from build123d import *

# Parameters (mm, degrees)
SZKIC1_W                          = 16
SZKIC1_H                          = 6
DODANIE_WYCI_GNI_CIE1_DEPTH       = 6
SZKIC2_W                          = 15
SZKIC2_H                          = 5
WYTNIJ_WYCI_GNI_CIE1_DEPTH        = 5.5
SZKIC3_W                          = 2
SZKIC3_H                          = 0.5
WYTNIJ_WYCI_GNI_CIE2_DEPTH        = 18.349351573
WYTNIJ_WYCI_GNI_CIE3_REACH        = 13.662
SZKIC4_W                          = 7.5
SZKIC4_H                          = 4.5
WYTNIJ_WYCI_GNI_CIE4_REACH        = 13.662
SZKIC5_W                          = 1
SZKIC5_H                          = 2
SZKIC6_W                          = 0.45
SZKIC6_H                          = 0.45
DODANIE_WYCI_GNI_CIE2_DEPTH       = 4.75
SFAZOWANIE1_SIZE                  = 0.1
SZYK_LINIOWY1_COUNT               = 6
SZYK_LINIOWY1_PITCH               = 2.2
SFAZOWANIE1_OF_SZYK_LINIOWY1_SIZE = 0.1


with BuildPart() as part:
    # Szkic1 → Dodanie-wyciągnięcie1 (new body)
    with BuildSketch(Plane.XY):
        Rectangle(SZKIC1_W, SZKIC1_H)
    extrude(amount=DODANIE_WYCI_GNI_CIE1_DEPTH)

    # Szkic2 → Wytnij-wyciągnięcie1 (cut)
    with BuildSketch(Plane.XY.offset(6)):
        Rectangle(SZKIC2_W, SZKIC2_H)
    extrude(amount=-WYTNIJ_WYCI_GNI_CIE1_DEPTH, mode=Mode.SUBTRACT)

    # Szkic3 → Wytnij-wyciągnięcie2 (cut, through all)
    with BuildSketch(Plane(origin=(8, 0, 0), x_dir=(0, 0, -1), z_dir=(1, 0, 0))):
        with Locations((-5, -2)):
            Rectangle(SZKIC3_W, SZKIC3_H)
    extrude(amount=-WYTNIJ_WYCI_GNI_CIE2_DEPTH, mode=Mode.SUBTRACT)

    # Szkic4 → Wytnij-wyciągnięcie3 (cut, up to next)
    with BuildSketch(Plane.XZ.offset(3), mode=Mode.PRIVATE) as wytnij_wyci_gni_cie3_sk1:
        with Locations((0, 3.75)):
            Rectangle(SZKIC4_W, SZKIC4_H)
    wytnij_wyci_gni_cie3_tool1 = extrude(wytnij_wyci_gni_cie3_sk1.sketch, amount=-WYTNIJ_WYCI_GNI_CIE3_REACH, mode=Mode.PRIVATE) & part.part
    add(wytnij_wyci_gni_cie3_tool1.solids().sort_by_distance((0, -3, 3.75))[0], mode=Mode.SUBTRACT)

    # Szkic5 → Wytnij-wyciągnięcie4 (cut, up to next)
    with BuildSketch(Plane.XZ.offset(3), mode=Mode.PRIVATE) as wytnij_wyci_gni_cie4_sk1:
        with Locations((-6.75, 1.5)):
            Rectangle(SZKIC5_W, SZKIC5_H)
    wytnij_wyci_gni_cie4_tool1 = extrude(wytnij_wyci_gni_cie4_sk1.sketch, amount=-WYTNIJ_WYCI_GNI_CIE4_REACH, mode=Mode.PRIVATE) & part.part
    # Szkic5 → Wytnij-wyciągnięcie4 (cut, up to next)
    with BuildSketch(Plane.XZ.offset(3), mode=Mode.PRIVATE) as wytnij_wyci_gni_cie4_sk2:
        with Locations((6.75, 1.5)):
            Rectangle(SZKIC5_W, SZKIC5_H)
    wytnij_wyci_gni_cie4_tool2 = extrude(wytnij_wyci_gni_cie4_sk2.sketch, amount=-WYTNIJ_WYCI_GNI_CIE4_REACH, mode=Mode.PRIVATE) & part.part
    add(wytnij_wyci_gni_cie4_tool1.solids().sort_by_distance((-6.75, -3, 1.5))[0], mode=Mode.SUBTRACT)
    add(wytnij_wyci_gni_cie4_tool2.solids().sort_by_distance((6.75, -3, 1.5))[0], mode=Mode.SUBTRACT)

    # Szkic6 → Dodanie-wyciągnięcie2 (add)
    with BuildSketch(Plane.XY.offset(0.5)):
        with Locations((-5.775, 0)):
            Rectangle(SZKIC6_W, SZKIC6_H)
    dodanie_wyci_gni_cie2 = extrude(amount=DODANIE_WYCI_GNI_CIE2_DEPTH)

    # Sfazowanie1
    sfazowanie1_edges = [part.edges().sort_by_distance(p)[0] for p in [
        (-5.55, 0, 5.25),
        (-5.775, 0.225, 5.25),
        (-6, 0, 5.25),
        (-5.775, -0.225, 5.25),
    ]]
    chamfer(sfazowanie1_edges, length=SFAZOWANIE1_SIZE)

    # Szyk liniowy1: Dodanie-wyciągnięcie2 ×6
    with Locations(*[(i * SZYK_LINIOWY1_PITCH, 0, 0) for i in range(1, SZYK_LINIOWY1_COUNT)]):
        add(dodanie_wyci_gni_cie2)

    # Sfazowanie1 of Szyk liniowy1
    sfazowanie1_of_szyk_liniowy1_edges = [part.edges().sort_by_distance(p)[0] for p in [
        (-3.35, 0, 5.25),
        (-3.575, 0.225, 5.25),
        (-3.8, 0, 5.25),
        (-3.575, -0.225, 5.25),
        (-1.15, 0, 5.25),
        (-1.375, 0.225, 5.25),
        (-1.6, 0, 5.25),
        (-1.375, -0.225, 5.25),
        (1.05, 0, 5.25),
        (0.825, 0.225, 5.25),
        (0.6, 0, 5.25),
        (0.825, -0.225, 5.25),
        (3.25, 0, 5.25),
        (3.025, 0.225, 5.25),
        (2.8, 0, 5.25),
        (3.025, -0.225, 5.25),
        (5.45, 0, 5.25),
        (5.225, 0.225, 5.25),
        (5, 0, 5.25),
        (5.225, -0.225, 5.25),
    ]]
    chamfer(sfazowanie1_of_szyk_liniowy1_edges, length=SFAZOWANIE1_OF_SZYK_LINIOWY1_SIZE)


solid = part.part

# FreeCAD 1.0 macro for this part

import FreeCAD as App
import Part
import Sketcher
Q = App.Units.Quantity


def edges_at(feature, points):
    """Names of the edges that pass closest to the given points."""
    edges = feature.Shape.Edges
    near = lambda p: min(range(len(edges)), key=lambda i: edges[i].distToShape(Part.Vertex(*p))[0])
    return sorted({f"Edge{near(p) + 1}" for p in points})


def add_polygon(sketch, points):
    """Adds a closed chain of lines whose ends are joined by coincident constraints."""
    first, n = sketch.GeometryCount, len(points)
    for a, b in zip(points, points[1:] + points[:1]):
        sketch.addGeometry(Part.LineSegment(App.Vector(*a, 0), App.Vector(*b, 0)), False)
    for i in range(n):
        sketch.addConstraint(Sketcher.Constraint("Coincident", first + i, 2, first + (i + 1) % n, 1))

doc = App.newDocument("Part")
body = doc.addObject("PartDesign::Body", "Body")

# Sketch on XY plane
sketch1 = doc.addObject("Sketcher::SketchObject", "Sketch")
body.addObject(sketch1)
sketch1.AttachmentSupport = (doc.XY_Plane, [""])
sketch1.MapMode = "FlatFace"
add_polygon(sketch1, [(-8, 3), (-8, -3), (8, -3), (8, 3)])  # lines 0-3
sketch1.addConstraint([
    Sketcher.Constraint("Vertical", 0),
    Sketcher.Constraint("Horizontal", 1),
    Sketcher.Constraint("Vertical", 2),
    Sketcher.Constraint("Horizontal", 3),
    Sketcher.Constraint("Symmetric", 0, 2, 2, 2, -1, 1),
    Sketcher.Constraint("DistanceX", 1, 1, 1, 2, Q("16 mm")),
    Sketcher.Constraint("DistanceY", 0, 2, 0, 1, Q("6 mm")),
])
pad1 = doc.addObject("PartDesign::Pad", "Pad")
body.addObject(pad1)
pad1.Profile = sketch1
pad1.Length = 6

# Sketch on XY plane
sketch2 = doc.addObject("Sketcher::SketchObject", "Sketch001")
body.addObject(sketch2)
sketch2.AttachmentSupport = (doc.XY_Plane, [""])
sketch2.MapMode = "FlatFace"
sketch2.AttachmentOffset = App.Placement(App.Vector(0, 0, 6), App.Rotation())
add_polygon(sketch2, [(-8, 2), (-8, -2), (8, -2), (8, 2)])  # lines 0-3
sketch2.addConstraint([
    Sketcher.Constraint("Vertical", 0),
    Sketcher.Constraint("Horizontal", 1),
    Sketcher.Constraint("Vertical", 2),
    Sketcher.Constraint("Horizontal", 3),
    Sketcher.Constraint("Symmetric", 0, 2, 2, 2, -1, 1),
    Sketcher.Constraint("DistanceX", 1, 1, 1, 2, Q("15 mm")),
    Sketcher.Constraint("DistanceY", 0, 2, 0, 1, Q("5 mm")),
])
pocket1 = doc.addObject("PartDesign::Pocket", "Pocket")
body.addObject(pocket1)
pocket1.Profile = sketch2
pocket1.Length = 5.5

# Sketch on YZ plane
sketch3 = doc.addObject("Sketcher::SketchObject", "Sketch002")
body.addObject(sketch3)
sketch3.AttachmentSupport = (doc.YZ_Plane, [""])
sketch3.MapMode = "FlatFace"
sketch3.AttachmentOffset = App.Placement(App.Vector(0, 0, 8), App.Rotation())
add_polygon(sketch3, [(-1.8, 6), (-2.2, 6), (-2.2, 4), (-1.8, 4)])  # lines 0-3
sketch3.addConstraint([
    Sketcher.Constraint("Horizontal", 0),
    Sketcher.Constraint("Vertical", 1),
    Sketcher.Constraint("Horizontal", 2),
    Sketcher.Constraint("Vertical", 3),
    Sketcher.Constraint("DistanceY", 1, 2, 1, 1, Q("2 mm")),
    Sketcher.Constraint("DistanceX", 0, 2, 0, 1, Q("0.5 mm")),
    Sketcher.Constraint("DistanceY", -1, 1, 0, 2, Q("6 mm")),
    Sketcher.Constraint("DistanceX", 0, 2, -1, 1, Q("2.25 mm")),
])
pocket2 = doc.addObject("PartDesign::Pocket", "Pocket001")
body.addObject(pocket2)
pocket2.Profile = sketch3
pocket2.Type = "ThroughAll"

# Sketch on XZ plane
sketch4 = doc.addObject("Sketcher::SketchObject", "Sketch003")
body.addObject(sketch4)
sketch4.AttachmentSupport = (doc.XZ_Plane, [""])
sketch4.MapMode = "FlatFace"
sketch4.AttachmentOffset = App.Placement(App.Vector(0, 0, 3), App.Rotation())
add_polygon(sketch4, [(-3.8, 6), (-3.8, 1.5), (3.8, 1.5), (3.8, 6)])  # lines 0-3
sketch4.addConstraint([
    Sketcher.Constraint("Vertical", 0),
    Sketcher.Constraint("Horizontal", 1),
    Sketcher.Constraint("Vertical", 2),
    Sketcher.Constraint("Horizontal", 3),
    Sketcher.Constraint("DistanceX", 1, 1, 1, 2, Q("7.5 mm")),
    Sketcher.Constraint("DistanceY", 0, 2, 0, 1, Q("4.5 mm")),
    Sketcher.Constraint("DistanceY", -1, 1, 2, 2, Q("6 mm")),
    Sketcher.Constraint("DistanceX", 0, 2, -1, 1, Q("3.75 mm")),
])
pocket3 = doc.addObject("PartDesign::Pocket", "Pocket002")
body.addObject(pocket3)
pocket3.Profile = sketch4
pocket3.Type = "UpToFirst"

# Sketch on XZ plane
sketch5 = doc.addObject("Sketcher::SketchObject", "Sketch004")
body.addObject(sketch5)
sketch5.AttachmentSupport = (doc.XZ_Plane, [""])
sketch5.MapMode = "FlatFace"
sketch5.AttachmentOffset = App.Placement(App.Vector(0, 0, 3), App.Rotation())
add_polygon(sketch5, [(-7.2, 2.5), (-7.2, 0.5), (-6.2, 0.5), (-6.2, 2.5)])  # lines 0-3
sketch5.addConstraint([
    Sketcher.Constraint("Vertical", 0),
    Sketcher.Constraint("Horizontal", 1),
    Sketcher.Constraint("Vertical", 2),
    Sketcher.Constraint("Horizontal", 3),
    Sketcher.Constraint("DistanceX", 1, 1, 1, 2, Q("1 mm")),
    Sketcher.Constraint("DistanceY", 0, 2, 0, 1, Q("2 mm")),
    Sketcher.Constraint("DistanceY", -1, 1, 0, 2, Q("0.5 mm")),
    Sketcher.Constraint("DistanceX", 0, 2, -1, 1, Q("7.25 mm")),
])
pocket4 = doc.addObject("PartDesign::Pocket", "Pocket003")
body.addObject(pocket4)
pocket4.Profile = sketch5
pocket4.Type = "UpToFirst"

# Sketch on XZ plane
sketch6 = doc.addObject("Sketcher::SketchObject", "Sketch005")
body.addObject(sketch6)
sketch6.AttachmentSupport = (doc.XZ_Plane, [""])
sketch6.MapMode = "FlatFace"
sketch6.AttachmentOffset = App.Placement(App.Vector(0, 0, 3), App.Rotation())
add_polygon(sketch6, [(6.2, 2.5), (6.2, 0.5), (7.2, 0.5), (7.2, 2.5)])  # lines 0-3
sketch6.addConstraint([
    Sketcher.Constraint("Vertical", 0),
    Sketcher.Constraint("Horizontal", 1),
    Sketcher.Constraint("Vertical", 2),
    Sketcher.Constraint("Horizontal", 3),
    Sketcher.Constraint("DistanceX", 1, 1, 1, 2, Q("1 mm")),
    Sketcher.Constraint("DistanceY", 0, 2, 0, 1, Q("2 mm")),
    Sketcher.Constraint("DistanceY", -1, 1, 0, 2, Q("0.5 mm")),
    Sketcher.Constraint("DistanceX", -1, 1, 0, 2, Q("6.25 mm")),
])
pocket5 = doc.addObject("PartDesign::Pocket", "Pocket004")
body.addObject(pocket5)
pocket5.Profile = sketch6
pocket5.Type = "UpToFirst"

# Sketch on XY plane
sketch7 = doc.addObject("Sketcher::SketchObject", "Sketch006")
body.addObject(sketch7)
sketch7.AttachmentSupport = (doc.XY_Plane, [""])
sketch7.MapMode = "FlatFace"
sketch7.AttachmentOffset = App.Placement(App.Vector(0, 0, 0.5), App.Rotation())
add_polygon(sketch7, [(-6, 0.23), (-6, -0.23), (-5.55, -0.23), (-5.55, 0.23)])  # lines 0-3
sketch7.addConstraint([
    Sketcher.Constraint("Vertical", 0),
    Sketcher.Constraint("Horizontal", 1),
    Sketcher.Constraint("Vertical", 2),
    Sketcher.Constraint("Horizontal", 3),
    Sketcher.Constraint("Equal", 3, 0),
    Sketcher.Constraint("DistanceX", 0, 2, -1, 1, Q("6 mm")),
    Sketcher.Constraint("DistanceX", 1, 1, 1, 2, Q("0.45 mm")),
    Sketcher.Constraint("DistanceY", 0, 2, -1, 1, Q("0.225 mm")),
])
pad2 = doc.addObject("PartDesign::Pad", "Pad001")
body.addObject(pad2)
pad2.Profile = sketch7
pad2.Length = 4.75
doc.recompute()

chamfer = doc.addObject("PartDesign::Chamfer", "Chamfer")
body.addObject(chamfer)
chamfer.Base = (pad2, edges_at(pad2, [
    (-5.55, 0, 5.25),
    (-5.775, 0.225, 5.25),
    (-6, 0, 5.25),
    (-5.775, -0.225, 5.25),
]))
chamfer.Size = 0.1
doc.recompute()

linearpattern = doc.addObject("PartDesign::LinearPattern", "LinearPattern")
body.addObject(linearpattern)
linearpattern.Originals = [pad2]
linearpattern.Direction = (doc.X_Axis, [""])
linearpattern.Mode = "offset"
linearpattern.Offset = 2.2
linearpattern.Occurrences = 6
body.Tip = linearpattern
doc.recompute()

chamfer2 = doc.addObject("PartDesign::Chamfer", "Chamfer001")
body.addObject(chamfer2)
chamfer2.Base = (linearpattern, edges_at(linearpattern, [
    (-3.35, 0, 5.25),
    (-3.575, 0.225, 5.25),
    (-3.8, 0, 5.25),
    (-3.575, -0.225, 5.25),
    (-1.15, 0, 5.25),
    (-1.375, 0.225, 5.25),
    (-1.6, 0, 5.25),
    (-1.375, -0.225, 5.25),
    (1.05, 0, 5.25),
    (0.825, 0.225, 5.25),
    (0.6, 0, 5.25),
    (0.825, -0.225, 5.25),
    (3.25, 0, 5.25),
    (3.025, 0.225, 5.25),
    (2.8, 0, 5.25),
    (3.025, -0.225, 5.25),
    (5.45, 0, 5.25),
    (5.225, 0.225, 5.25),
    (5, 0, 5.25),
    (5.225, -0.225, 5.25),
]))
chamfer2.Size = 0.1

doc.recompute()
